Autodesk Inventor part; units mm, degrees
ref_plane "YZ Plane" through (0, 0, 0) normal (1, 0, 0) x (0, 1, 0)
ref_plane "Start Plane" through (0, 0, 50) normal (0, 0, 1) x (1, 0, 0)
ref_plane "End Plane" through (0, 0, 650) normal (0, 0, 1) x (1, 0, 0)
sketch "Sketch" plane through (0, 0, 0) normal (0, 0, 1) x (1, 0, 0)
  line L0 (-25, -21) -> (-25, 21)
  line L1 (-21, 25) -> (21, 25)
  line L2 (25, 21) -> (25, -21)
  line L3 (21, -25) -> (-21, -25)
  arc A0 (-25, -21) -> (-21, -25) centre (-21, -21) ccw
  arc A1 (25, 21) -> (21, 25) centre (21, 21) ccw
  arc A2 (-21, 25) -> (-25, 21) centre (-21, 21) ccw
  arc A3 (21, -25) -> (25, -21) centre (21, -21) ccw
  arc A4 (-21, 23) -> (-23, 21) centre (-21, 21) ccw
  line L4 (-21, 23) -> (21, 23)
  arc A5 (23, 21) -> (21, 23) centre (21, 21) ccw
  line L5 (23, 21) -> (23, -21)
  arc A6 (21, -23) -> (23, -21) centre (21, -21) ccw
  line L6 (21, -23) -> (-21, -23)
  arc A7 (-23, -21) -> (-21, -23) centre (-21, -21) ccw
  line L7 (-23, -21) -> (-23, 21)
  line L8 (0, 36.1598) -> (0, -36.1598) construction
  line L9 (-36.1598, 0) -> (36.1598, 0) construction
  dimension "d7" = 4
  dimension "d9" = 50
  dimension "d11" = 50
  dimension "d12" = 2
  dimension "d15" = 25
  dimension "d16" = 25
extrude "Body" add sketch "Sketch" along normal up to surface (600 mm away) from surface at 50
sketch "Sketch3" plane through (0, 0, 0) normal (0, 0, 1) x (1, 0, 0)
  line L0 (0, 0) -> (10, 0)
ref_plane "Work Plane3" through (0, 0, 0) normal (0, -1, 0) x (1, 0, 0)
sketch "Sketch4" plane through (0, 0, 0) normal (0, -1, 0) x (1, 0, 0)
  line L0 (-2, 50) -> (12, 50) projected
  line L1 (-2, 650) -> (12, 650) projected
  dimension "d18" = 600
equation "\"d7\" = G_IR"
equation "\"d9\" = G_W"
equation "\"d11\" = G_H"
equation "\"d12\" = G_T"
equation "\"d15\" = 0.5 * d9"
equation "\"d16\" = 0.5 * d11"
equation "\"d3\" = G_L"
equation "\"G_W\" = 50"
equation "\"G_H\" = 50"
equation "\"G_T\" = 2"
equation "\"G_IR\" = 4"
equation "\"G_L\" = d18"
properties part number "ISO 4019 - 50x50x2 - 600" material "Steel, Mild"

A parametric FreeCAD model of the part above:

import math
import FreeCAD as App
import Part
import Sketcher
from FreeCAD import Vector

doc = App.newDocument("Part")
body = doc.addObject("PartDesign::Body", "Body")

# Sketch on XY plane
sketch1 = body.newObject("Sketcher::SketchObject", "Sketch")
sketch1.AttachmentSupport = (doc.getObject("XY_Plane"), [""])
sketch1.MapMode = "FlatFace"
sketch1.AttachmentOffset = App.Placement(Vector(0, 0, 50), App.Rotation())
sketch1.addGeometry([
    Part.LineSegment(Vector(-25, 21, 0), Vector(-25, -21, 0)),  # 0
    Part.ArcOfCircle(Part.Circle(Vector(-21, -21, 0), Vector(0, 0, 1), 4), math.radians(180), math.radians(270)),  # 1
    Part.LineSegment(Vector(-21, -25, 0), Vector(21, -25, 0)),  # 2
    Part.ArcOfCircle(Part.Circle(Vector(21, -21, 0), Vector(0, 0, 1), 4), math.radians(-90), math.radians(0)),  # 3
    Part.LineSegment(Vector(25, -21, 0), Vector(25, 21, 0)),  # 4
    Part.ArcOfCircle(Part.Circle(Vector(21, 21, 0), Vector(0, 0, 1), 4), math.radians(0), math.radians(90)),  # 5
    Part.LineSegment(Vector(21, 25, 0), Vector(-21, 25, 0)),  # 6
    Part.ArcOfCircle(Part.Circle(Vector(-21, 21, 0), Vector(0, 0, 1), 4), math.radians(90), math.radians(180)),  # 7
    Part.ArcOfCircle(Part.Circle(Vector(-21, 21, 0), Vector(0, 0, 1), 2), math.radians(90), math.radians(180)),  # 8
    Part.LineSegment(Vector(-21, 23, 0), Vector(21, 23, 0)),  # 9
    Part.ArcOfCircle(Part.Circle(Vector(21, 21, 0), Vector(0, 0, 1), 2), math.radians(0), math.radians(90)),  # 10
    Part.LineSegment(Vector(23, 21, 0), Vector(23, -21, 0)),  # 11
    Part.ArcOfCircle(Part.Circle(Vector(21, -21, 0), Vector(0, 0, 1), 2), math.radians(-90), math.radians(0)),  # 12
    Part.LineSegment(Vector(21, -23, 0), Vector(-21, -23, 0)),  # 13
    Part.ArcOfCircle(Part.Circle(Vector(-21, -21, 0), Vector(0, 0, 1), 2), math.radians(180), math.radians(270)),  # 14
    Part.LineSegment(Vector(-23, -21, 0), Vector(-23, 21, 0)),  # 15
], False)
sketch1.addConstraint([
    Sketcher.Constraint("Tangent", 0, 2, 1, 1),
    Sketcher.Constraint("Tangent", 1, 2, 2, 1),
    Sketcher.Constraint("Tangent", 2, 2, 3, 1),
    Sketcher.Constraint("Tangent", 3, 2, 4, 1),
    Sketcher.Constraint("Tangent", 4, 2, 5, 1),
    Sketcher.Constraint("Tangent", 5, 2, 6, 1),
    Sketcher.Constraint("Tangent", 6, 2, 7, 1),
    Sketcher.Constraint("Tangent", 7, 2, 0, 1),
    Sketcher.Constraint("Tangent", 8, 1, 9, 1),
    Sketcher.Constraint("Tangent", 9, 2, 10, 2),
    Sketcher.Constraint("Tangent", 10, 1, 11, 1),
    Sketcher.Constraint("Tangent", 11, 2, 12, 2),
    Sketcher.Constraint("Tangent", 12, 1, 13, 1),
    Sketcher.Constraint("Tangent", 13, 2, 14, 2),
    Sketcher.Constraint("Tangent", 14, 1, 15, 1),
    Sketcher.Constraint("Tangent", 15, 2, 8, 2),
    Sketcher.Constraint("Vertical", 0),
    Sketcher.Constraint("Horizontal", 2),
    Sketcher.Constraint("Vertical", 4),
    Sketcher.Constraint("Horizontal", 6),
    Sketcher.Constraint("Horizontal", 9),
    Sketcher.Constraint("Vertical", 11),
    Sketcher.Constraint("Horizontal", 13),
    Sketcher.Constraint("Vertical", 15),
    Sketcher.Constraint("Coincident", 8, 3, 7, 3),
    Sketcher.Constraint("Coincident", 10, 3, 5, 3),
    Sketcher.Constraint("Coincident", 12, 3, 3, 3),
    Sketcher.Constraint("Equal", 1, 3),
    Sketcher.Constraint("Equal", 3, 5),
    Sketcher.Constraint("Equal", 5, 7),
    Sketcher.Constraint("Equal", 12, 14),
    Sketcher.Constraint("Symmetric", 1, 3, 5, 3, -1, 1),
    Sketcher.Constraint("Equal", 13, 0),
    Sketcher.Constraint("Radius", 1, 4.0),
    Sketcher.Constraint("Radius", 8, 2.0),
    Sketcher.Constraint("DistanceX", 0, 2, -1, 1, 25.0),
])
pad1 = body.newObject("PartDesign::Pad", "Pad")
pad1.Profile = sketch1
pad1.Length = 600

doc.recompute()
